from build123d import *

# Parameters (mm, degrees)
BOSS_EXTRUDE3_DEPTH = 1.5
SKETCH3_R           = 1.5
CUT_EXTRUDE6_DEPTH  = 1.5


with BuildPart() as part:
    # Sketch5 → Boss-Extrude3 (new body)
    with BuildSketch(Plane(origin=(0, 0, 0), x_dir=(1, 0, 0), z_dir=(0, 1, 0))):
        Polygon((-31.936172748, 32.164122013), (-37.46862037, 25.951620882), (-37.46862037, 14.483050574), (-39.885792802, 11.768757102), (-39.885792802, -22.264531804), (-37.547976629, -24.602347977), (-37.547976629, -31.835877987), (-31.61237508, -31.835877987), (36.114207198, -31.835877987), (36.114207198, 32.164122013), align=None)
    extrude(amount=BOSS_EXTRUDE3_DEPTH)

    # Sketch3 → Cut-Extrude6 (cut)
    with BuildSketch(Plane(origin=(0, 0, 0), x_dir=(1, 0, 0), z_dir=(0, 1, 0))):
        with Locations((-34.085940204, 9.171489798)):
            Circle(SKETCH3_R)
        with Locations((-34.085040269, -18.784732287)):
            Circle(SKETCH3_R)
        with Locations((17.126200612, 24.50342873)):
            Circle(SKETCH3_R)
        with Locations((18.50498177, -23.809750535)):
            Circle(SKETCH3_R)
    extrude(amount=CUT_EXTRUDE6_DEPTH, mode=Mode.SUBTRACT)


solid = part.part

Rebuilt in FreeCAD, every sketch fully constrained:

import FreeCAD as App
import Part
import Sketcher
Q = App.Units.Quantity

doc = App.newDocument("Part")
params = doc.addObject("Spreadsheet::Sheet", "Params")
for row, (alias, value) in enumerate([
    ("sketch1_height", "64 mm"),
    ("pad1_length", "1.5 mm"),
    ("sketch2_diameter", "3 mm"),
    ("pocket1_length", "1.5 mm"),
], start=1):
    params.set(f"A{row}", alias)
    params.set(f"B{row}", "=" + value)
    params.setAlias(f"B{row}", alias)

body = doc.addObject("PartDesign::Body", "Body")

sketch1 = doc.addObject("Sketcher::SketchObject", "Sketch")
body.addObject(sketch1)
sketch1.AttachmentSupport = (doc.XZ_Plane, [""])
sketch1.MapMode = "FlatFace"
sketch1.addGeometry(Part.LineSegment(App.Vector(-31.9, -32.2, 0), App.Vector(-37.5, -26, 0)), False)
sketch1.addGeometry(Part.LineSegment(App.Vector(-37.5, -26, 0), App.Vector(-37.5, -14.5, 0)), False)
sketch1.addGeometry(Part.LineSegment(App.Vector(-37.5, -14.5, 0), App.Vector(-39.9, -11.8, 0)), False)
sketch1.addGeometry(Part.LineSegment(App.Vector(-39.9, -11.8, 0), App.Vector(-39.9, 22.3, 0)), False)
sketch1.addGeometry(Part.LineSegment(App.Vector(-39.9, 22.3, 0), App.Vector(-37.5, 24.6, 0)), False)
sketch1.addGeometry(Part.LineSegment(App.Vector(-37.5, 24.6, 0), App.Vector(-37.5, 31.8, 0)), False)
sketch1.addGeometry(Part.LineSegment(App.Vector(-37.5, 31.8, 0), App.Vector(36.1, 31.8, 0)), False)
sketch1.addGeometry(Part.LineSegment(App.Vector(36.1, 31.8, 0), App.Vector(36.1, -32.2, 0)), False)
sketch1.addGeometry(Part.LineSegment(App.Vector(36.1, -32.2, 0), App.Vector(-31.9, -32.2, 0)), False)
sketch1.addConstraint(Sketcher.Constraint("Coincident", 0, 2, 1, 1))
sketch1.addConstraint(Sketcher.Constraint("Coincident", 1, 2, 2, 1))
sketch1.addConstraint(Sketcher.Constraint("Coincident", 2, 2, 3, 1))
sketch1.addConstraint(Sketcher.Constraint("Coincident", 3, 2, 4, 1))
sketch1.addConstraint(Sketcher.Constraint("Coincident", 4, 2, 5, 1))
sketch1.addConstraint(Sketcher.Constraint("Coincident", 5, 2, 6, 1))
sketch1.addConstraint(Sketcher.Constraint("Coincident", 6, 2, 7, 1))
sketch1.addConstraint(Sketcher.Constraint("Coincident", 7, 2, 8, 1))
sketch1.addConstraint(Sketcher.Constraint("Coincident", 8, 2, 0, 1))
sketch1.addConstraint(Sketcher.Constraint("Vertical", 1))
sketch1.addConstraint(Sketcher.Constraint("Vertical", 3))
sketch1.addConstraint(Sketcher.Constraint("Vertical", 5))
sketch1.addConstraint(Sketcher.Constraint("Horizontal", 6))
sketch1.addConstraint(Sketcher.Constraint("Vertical", 7))
sketch1.addConstraint(Sketcher.Constraint("Horizontal", 8))
sketch1.addConstraint(Sketcher.Constraint("Parallel", 0, 2))
sketch1.addConstraint(Sketcher.Constraint("DistanceY", 7, 2, 7, 1, 64.0))
sketch1.addConstraint(Sketcher.Constraint("Angle", 4, Q("45 deg")))
sketch1.addConstraint(Sketcher.Constraint("DistanceX", 3, 2, 6, 2, 76.0))
sketch1.addConstraint(Sketcher.Constraint("DistanceX", 8, 2, 8, 1, 68.05038))
sketch1.addConstraint(Sketcher.Constraint("DistanceY", 1, 1, 1, 2, 11.46857))
sketch1.addConstraint(Sketcher.Constraint("DistanceY", 3, 1, 3, 2, 34.033289))
sketch1.addConstraint(Sketcher.Constraint("DistanceY", 5, 1, 5, 2, 7.23353))
sketch1.addConstraint(Sketcher.Constraint("DistanceY", 1, 2, 4, 2, 39.085399))
sketch1.addConstraint(Sketcher.Constraint("Distance", 2, 3.634572))
sketch1.addConstraint(Sketcher.Constraint("DistanceX", 0, 2, -1, 1, 37.46862))
sketch1.addConstraint(Sketcher.Constraint("DistanceY", 0, 2, -1, 1, 25.951621))
sketch1.setExpression("Constraints[16]", "Params.sketch1_height")
pad1 = doc.addObject("PartDesign::Pad", "Pad")
body.addObject(pad1)
pad1.Profile = sketch1
pad1.setExpression("Length", "Params.pad1_length")
pad1.Reversed = True

sketch2 = doc.addObject("Sketcher::SketchObject", "Sketch001")
body.addObject(sketch2)
sketch2.AttachmentSupport = (doc.XZ_Plane, [""])
sketch2.MapMode = "FlatFace"
sketch2.addGeometry(Part.Circle(App.Vector(-34.1, -9.2, 0), App.Vector(0, 0, 1), 1.5), False)
sketch2.addGeometry(Part.Circle(App.Vector(-34.1, 18.8, 0), App.Vector(0, 0, 1), 1.5), False)
sketch2.addGeometry(Part.Circle(App.Vector(17.1, -24.5, 0), App.Vector(0, 0, 1), 1.5), False)
sketch2.addGeometry(Part.Circle(App.Vector(18.5, 23.8, 0), App.Vector(0, 0, 1), 1.5), False)
sketch2.addConstraint(Sketcher.Constraint("Equal", 0, 1))
sketch2.addConstraint(Sketcher.Constraint("Equal", 1, 2))
sketch2.addConstraint(Sketcher.Constraint("Equal", 2, 3))
sketch2.addConstraint(Sketcher.Constraint("Diameter", 0, 3.0))
sketch2.addConstraint(Sketcher.Constraint("DistanceX", -1, 1, 2, 3, 17.126201))
sketch2.addConstraint(Sketcher.Constraint("DistanceX", 0, 3, 1, 3, 0.0009))
sketch2.addConstraint(Sketcher.Constraint("DistanceX", 0, 3, -1, 1, 34.08594))
sketch2.addConstraint(Sketcher.Constraint("DistanceY", 0, 3, -1, 1, 9.17149))
sketch2.addConstraint(Sketcher.Constraint("DistanceY", 2, 3, -1, 1, 24.503429))
sketch2.addConstraint(Sketcher.Constraint("DistanceX", -1, 1, 3, 3, 18.504982))
sketch2.addConstraint(Sketcher.Constraint("DistanceY", -1, 1, 3, 3, 23.809751))
sketch2.addConstraint(Sketcher.Constraint("DistanceY", 2, 3, 1, 3, 43.288161))
sketch2.setExpression("Constraints[3]", "Params.sketch2_diameter")
pocket1 = doc.addObject("PartDesign::Pocket", "Pocket")
body.addObject(pocket1)
pocket1.Profile = sketch2
pocket1.setExpression("Length", "Params.pocket1_length")

doc.recompute()
